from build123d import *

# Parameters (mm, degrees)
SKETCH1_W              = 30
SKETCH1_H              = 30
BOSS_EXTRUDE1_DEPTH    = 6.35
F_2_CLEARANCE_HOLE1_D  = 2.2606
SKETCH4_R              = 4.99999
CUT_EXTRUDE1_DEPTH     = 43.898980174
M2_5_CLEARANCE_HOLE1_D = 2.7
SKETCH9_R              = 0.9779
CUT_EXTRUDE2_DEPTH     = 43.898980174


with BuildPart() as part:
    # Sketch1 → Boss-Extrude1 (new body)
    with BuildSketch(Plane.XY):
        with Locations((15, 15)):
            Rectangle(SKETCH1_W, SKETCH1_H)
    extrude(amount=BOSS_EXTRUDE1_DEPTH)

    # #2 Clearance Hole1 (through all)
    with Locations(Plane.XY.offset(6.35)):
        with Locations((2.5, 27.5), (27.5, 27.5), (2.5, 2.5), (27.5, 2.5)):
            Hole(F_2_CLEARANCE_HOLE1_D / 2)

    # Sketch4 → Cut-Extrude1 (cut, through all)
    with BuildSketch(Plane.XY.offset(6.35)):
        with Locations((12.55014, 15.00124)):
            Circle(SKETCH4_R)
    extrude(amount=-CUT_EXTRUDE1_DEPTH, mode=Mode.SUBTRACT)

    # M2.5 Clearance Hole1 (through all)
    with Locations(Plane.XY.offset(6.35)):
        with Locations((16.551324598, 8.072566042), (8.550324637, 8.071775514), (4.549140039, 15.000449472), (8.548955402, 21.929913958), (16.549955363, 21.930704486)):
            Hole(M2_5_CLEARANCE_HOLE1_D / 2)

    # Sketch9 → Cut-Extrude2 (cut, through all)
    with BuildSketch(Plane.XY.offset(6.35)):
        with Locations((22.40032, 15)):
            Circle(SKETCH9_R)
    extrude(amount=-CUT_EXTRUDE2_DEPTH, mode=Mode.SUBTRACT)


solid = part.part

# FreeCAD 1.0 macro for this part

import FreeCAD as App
import Part
import Sketcher
Q = App.Units.Quantity


def add_polygon(sketch, points):
    """Adds a closed chain of lines whose ends are joined by coincident constraints."""
    first, n = sketch.GeometryCount, len(points)
    for a, b in zip(points, points[1:] + points[:1]):
        sketch.addGeometry(Part.LineSegment(App.Vector(*a, 0), App.Vector(*b, 0)), False)
    for i in range(n):
        sketch.addConstraint(Sketcher.Constraint("Coincident", first + i, 2, first + (i + 1) % n, 1))

doc = App.newDocument("Part")
params = doc.addObject("Spreadsheet::Sheet", "Params")
for row, (alias, value) in enumerate([
    ("pad1_length", "0.25 in"),
    ("sketch2_diameter", "0.089 in"),
    ("hole_diameter", "0.089 in"),
    ("hole2_diameter", "2.7 mm"),
    ("sketch5_diameter", "0.077 in"),
], start=1):
    params.set(f"A{row}", alias)
    params.set(f"B{row}", "=" + value)
    params.setAlias(f"B{row}", alias)

body = doc.addObject("PartDesign::Body", "Body")

# Sketch on XY plane
sketch1 = body.newObject("Sketcher::SketchObject", "Sketch")
sketch1.AttachmentSupport = (doc.getObject("XY_Plane"), [""])
sketch1.MapMode = "FlatFace"
add_polygon(sketch1, [(0, 30), (0, 0), (30, 0), (30, 30)])  # lines 0-3
sketch1.addConstraint([
    Sketcher.Constraint("Vertical", 0),
    Sketcher.Constraint("Horizontal", 1),
    Sketcher.Constraint("Vertical", 2),
    Sketcher.Constraint("Horizontal", 3),
    Sketcher.Constraint("Coincident", 0, 2, -1, 1),
    Sketcher.Constraint("Equal", 3, 0),
    Sketcher.Constraint("DistanceX", 1, 1, 1, 2, Q("30 mm")),
])
pad1 = body.newObject("PartDesign::Pad", "Pad")
pad1.Profile = sketch1
pad1.setExpression("Length", "Params.pad1_length")

# Sketch on XY plane
sketch2 = body.newObject("Sketcher::SketchObject", "Sketch001")
sketch2.AttachmentSupport = (doc.getObject("XY_Plane"), [""])
sketch2.MapMode = "FlatFace"
sketch2.AttachmentOffset = App.Placement(App.Vector(0, 0, 0.25 * 25.4), App.Rotation())
sketch2.addGeometry([
    Part.Circle(App.Vector(2.5, 27.5, 0), App.Vector(0, 0, 1), 1.1),
    Part.Circle(App.Vector(27.5, 27.5, 0), App.Vector(0, 0, 1), 1.1),
    Part.Circle(App.Vector(2.5, 2.5, 0), App.Vector(0, 0, 1), 1.1),
    Part.Circle(App.Vector(27.5, 2.5, 0), App.Vector(0, 0, 1), 1.1),
], False)
sketch2.addConstraint([
    Sketcher.Constraint("Equal", 0, 1),
    Sketcher.Constraint("Equal", 1, 2),
    Sketcher.Constraint("Equal", 2, 3),
    Sketcher.Constraint("Horizontal", 0, 3, 1, 3),
    Sketcher.Constraint("Horizontal", 2, 3, 3, 3),
    Sketcher.Constraint("Vertical", 0, 3, 2, 3),
    Sketcher.Constraint("Vertical", 1, 3, 3, 3),
    Sketcher.Constraint("Diameter", 0, Q("0.089 in")),
    Sketcher.Constraint("DistanceX", -1, 1, 0, 3, Q("2.5 mm")),
    Sketcher.Constraint("DistanceY", -1, 1, 0, 3, Q("27.5 mm")),
    Sketcher.Constraint("DistanceX", -1, 1, 1, 3, Q("27.5 mm")),
    Sketcher.Constraint("DistanceY", -1, 1, 2, 3, Q("2.5 mm")),
])
sketch2.setExpression("Constraints[7]", "Params.sketch2_diameter")
doc.recompute()
hole = body.newObject("PartDesign::Hole", "Hole")
hole.Profile = sketch2
hole.ThreadType = "None"
hole.setExpression("Diameter", "Params.hole_diameter")
hole.DepthType = "ThroughAll"

# Sketch on XY plane
sketch3 = body.newObject("Sketcher::SketchObject", "Sketch002")
sketch3.AttachmentSupport = (doc.getObject("XY_Plane"), [""])
sketch3.MapMode = "FlatFace"
sketch3.AttachmentOffset = App.Placement(App.Vector(0, 0, 0.25 * 25.4), App.Rotation())
sketch3.addGeometry(Part.Circle(App.Vector(12.6, 15, 0), App.Vector(0, 0, 1), 5), False)
sketch3.addConstraint([
    Sketcher.Constraint("Diameter", 0, Q("0.3937 in")),
    Sketcher.Constraint("DistanceX", -1, 1, 0, 3, Q("0.4941 in")),
    Sketcher.Constraint("DistanceY", -1, 1, 0, 3, Q("0.5906 in")),
])
pocket1 = body.newObject("PartDesign::Pocket", "Pocket")
pocket1.Profile = sketch3
pocket1.Type = "ThroughAll"

# Sketch on XY plane
sketch4 = body.newObject("Sketcher::SketchObject", "Sketch003")
sketch4.AttachmentSupport = (doc.getObject("XY_Plane"), [""])
sketch4.MapMode = "FlatFace"
sketch4.AttachmentOffset = App.Placement(App.Vector(0, 0, 0.25 * 25.4), App.Rotation())
sketch4.addGeometry([
    Part.Circle(App.Vector(16.6, 8.1, 0), App.Vector(0, 0, 1), 1.4),  # 0
    Part.Circle(App.Vector(8.6, 8.1, 0), App.Vector(0, 0, 1), 1.4),  # 1
    Part.Circle(App.Vector(4.5, 15, 0), App.Vector(0, 0, 1), 1.4),  # 2
    Part.Circle(App.Vector(8.5, 21.9, 0), App.Vector(0, 0, 1), 1.4),  # 3
    Part.Circle(App.Vector(16.5, 21.9, 0), App.Vector(0, 0, 1), 1.4),  # 4
], False)
sketch4.addConstraint([
    Sketcher.Constraint("Equal", 0, 1),
    Sketcher.Constraint("Equal", 1, 2),
    Sketcher.Constraint("Equal", 2, 3),
    Sketcher.Constraint("Equal", 3, 4),
    Sketcher.Constraint("Diameter", 0, Q("2.7 mm")),
    Sketcher.Constraint("DistanceX", 1, 3, 0, 3, Q("0.315 in")),
    Sketcher.Constraint("DistanceX", 3, 3, 4, 3, Q("0.315 in")),
    Sketcher.Constraint("DistanceX", -1, 1, 2, 3, Q("0.1791 in")),
    Sketcher.Constraint("DistanceY", -1, 1, 2, 3, Q("15.000449 mm")),
    Sketcher.Constraint("DistanceY", 1, 3, 0, 3, Q("0.000791 mm")),
    Sketcher.Constraint("DistanceX", 3, 3, 1, 3, Q("0.001369 mm")),
    Sketcher.Constraint("DistanceY", 1, 3, 3, 3, Q("13.858138 mm")),
    Sketcher.Constraint("DistanceY", 3, 3, 4, 3, Q("0.000791 mm")),
    Sketcher.Constraint("DistanceX", -1, 1, 0, 3, Q("16.551325 mm")),
    Sketcher.Constraint("DistanceY", -1, 1, 0, 3, Q("8.072566 mm")),
])
doc.recompute()
hole2 = body.newObject("PartDesign::Hole", "Hole001")
hole2.Profile = sketch4
hole2.ThreadType = "None"
hole2.setExpression("Diameter", "Params.hole2_diameter")
hole2.DepthType = "ThroughAll"

# Sketch on XY plane
sketch5 = body.newObject("Sketcher::SketchObject", "Sketch004")
sketch5.AttachmentSupport = (doc.getObject("XY_Plane"), [""])
sketch5.MapMode = "FlatFace"
sketch5.AttachmentOffset = App.Placement(App.Vector(0, 0, 0.25 * 25.4), App.Rotation())
sketch5.addGeometry(Part.Circle(App.Vector(22.4, 15, 0), App.Vector(0, 0, 1), 1), False)
sketch5.addConstraint([
    Sketcher.Constraint("Diameter", 0, Q("0.077 in")),
    Sketcher.Constraint("DistanceY", -1, 1, 0, 3, Q("15 mm")),
    Sketcher.Constraint("DistanceX", -1, 1, 0, 3, Q("22.40032 mm")),
])
sketch5.setExpression("Constraints[0]", "Params.sketch5_diameter")
pocket2 = body.newObject("PartDesign::Pocket", "Pocket001")
pocket2.Profile = sketch5
pocket2.Type = "ThroughAll"

doc.recompute()
